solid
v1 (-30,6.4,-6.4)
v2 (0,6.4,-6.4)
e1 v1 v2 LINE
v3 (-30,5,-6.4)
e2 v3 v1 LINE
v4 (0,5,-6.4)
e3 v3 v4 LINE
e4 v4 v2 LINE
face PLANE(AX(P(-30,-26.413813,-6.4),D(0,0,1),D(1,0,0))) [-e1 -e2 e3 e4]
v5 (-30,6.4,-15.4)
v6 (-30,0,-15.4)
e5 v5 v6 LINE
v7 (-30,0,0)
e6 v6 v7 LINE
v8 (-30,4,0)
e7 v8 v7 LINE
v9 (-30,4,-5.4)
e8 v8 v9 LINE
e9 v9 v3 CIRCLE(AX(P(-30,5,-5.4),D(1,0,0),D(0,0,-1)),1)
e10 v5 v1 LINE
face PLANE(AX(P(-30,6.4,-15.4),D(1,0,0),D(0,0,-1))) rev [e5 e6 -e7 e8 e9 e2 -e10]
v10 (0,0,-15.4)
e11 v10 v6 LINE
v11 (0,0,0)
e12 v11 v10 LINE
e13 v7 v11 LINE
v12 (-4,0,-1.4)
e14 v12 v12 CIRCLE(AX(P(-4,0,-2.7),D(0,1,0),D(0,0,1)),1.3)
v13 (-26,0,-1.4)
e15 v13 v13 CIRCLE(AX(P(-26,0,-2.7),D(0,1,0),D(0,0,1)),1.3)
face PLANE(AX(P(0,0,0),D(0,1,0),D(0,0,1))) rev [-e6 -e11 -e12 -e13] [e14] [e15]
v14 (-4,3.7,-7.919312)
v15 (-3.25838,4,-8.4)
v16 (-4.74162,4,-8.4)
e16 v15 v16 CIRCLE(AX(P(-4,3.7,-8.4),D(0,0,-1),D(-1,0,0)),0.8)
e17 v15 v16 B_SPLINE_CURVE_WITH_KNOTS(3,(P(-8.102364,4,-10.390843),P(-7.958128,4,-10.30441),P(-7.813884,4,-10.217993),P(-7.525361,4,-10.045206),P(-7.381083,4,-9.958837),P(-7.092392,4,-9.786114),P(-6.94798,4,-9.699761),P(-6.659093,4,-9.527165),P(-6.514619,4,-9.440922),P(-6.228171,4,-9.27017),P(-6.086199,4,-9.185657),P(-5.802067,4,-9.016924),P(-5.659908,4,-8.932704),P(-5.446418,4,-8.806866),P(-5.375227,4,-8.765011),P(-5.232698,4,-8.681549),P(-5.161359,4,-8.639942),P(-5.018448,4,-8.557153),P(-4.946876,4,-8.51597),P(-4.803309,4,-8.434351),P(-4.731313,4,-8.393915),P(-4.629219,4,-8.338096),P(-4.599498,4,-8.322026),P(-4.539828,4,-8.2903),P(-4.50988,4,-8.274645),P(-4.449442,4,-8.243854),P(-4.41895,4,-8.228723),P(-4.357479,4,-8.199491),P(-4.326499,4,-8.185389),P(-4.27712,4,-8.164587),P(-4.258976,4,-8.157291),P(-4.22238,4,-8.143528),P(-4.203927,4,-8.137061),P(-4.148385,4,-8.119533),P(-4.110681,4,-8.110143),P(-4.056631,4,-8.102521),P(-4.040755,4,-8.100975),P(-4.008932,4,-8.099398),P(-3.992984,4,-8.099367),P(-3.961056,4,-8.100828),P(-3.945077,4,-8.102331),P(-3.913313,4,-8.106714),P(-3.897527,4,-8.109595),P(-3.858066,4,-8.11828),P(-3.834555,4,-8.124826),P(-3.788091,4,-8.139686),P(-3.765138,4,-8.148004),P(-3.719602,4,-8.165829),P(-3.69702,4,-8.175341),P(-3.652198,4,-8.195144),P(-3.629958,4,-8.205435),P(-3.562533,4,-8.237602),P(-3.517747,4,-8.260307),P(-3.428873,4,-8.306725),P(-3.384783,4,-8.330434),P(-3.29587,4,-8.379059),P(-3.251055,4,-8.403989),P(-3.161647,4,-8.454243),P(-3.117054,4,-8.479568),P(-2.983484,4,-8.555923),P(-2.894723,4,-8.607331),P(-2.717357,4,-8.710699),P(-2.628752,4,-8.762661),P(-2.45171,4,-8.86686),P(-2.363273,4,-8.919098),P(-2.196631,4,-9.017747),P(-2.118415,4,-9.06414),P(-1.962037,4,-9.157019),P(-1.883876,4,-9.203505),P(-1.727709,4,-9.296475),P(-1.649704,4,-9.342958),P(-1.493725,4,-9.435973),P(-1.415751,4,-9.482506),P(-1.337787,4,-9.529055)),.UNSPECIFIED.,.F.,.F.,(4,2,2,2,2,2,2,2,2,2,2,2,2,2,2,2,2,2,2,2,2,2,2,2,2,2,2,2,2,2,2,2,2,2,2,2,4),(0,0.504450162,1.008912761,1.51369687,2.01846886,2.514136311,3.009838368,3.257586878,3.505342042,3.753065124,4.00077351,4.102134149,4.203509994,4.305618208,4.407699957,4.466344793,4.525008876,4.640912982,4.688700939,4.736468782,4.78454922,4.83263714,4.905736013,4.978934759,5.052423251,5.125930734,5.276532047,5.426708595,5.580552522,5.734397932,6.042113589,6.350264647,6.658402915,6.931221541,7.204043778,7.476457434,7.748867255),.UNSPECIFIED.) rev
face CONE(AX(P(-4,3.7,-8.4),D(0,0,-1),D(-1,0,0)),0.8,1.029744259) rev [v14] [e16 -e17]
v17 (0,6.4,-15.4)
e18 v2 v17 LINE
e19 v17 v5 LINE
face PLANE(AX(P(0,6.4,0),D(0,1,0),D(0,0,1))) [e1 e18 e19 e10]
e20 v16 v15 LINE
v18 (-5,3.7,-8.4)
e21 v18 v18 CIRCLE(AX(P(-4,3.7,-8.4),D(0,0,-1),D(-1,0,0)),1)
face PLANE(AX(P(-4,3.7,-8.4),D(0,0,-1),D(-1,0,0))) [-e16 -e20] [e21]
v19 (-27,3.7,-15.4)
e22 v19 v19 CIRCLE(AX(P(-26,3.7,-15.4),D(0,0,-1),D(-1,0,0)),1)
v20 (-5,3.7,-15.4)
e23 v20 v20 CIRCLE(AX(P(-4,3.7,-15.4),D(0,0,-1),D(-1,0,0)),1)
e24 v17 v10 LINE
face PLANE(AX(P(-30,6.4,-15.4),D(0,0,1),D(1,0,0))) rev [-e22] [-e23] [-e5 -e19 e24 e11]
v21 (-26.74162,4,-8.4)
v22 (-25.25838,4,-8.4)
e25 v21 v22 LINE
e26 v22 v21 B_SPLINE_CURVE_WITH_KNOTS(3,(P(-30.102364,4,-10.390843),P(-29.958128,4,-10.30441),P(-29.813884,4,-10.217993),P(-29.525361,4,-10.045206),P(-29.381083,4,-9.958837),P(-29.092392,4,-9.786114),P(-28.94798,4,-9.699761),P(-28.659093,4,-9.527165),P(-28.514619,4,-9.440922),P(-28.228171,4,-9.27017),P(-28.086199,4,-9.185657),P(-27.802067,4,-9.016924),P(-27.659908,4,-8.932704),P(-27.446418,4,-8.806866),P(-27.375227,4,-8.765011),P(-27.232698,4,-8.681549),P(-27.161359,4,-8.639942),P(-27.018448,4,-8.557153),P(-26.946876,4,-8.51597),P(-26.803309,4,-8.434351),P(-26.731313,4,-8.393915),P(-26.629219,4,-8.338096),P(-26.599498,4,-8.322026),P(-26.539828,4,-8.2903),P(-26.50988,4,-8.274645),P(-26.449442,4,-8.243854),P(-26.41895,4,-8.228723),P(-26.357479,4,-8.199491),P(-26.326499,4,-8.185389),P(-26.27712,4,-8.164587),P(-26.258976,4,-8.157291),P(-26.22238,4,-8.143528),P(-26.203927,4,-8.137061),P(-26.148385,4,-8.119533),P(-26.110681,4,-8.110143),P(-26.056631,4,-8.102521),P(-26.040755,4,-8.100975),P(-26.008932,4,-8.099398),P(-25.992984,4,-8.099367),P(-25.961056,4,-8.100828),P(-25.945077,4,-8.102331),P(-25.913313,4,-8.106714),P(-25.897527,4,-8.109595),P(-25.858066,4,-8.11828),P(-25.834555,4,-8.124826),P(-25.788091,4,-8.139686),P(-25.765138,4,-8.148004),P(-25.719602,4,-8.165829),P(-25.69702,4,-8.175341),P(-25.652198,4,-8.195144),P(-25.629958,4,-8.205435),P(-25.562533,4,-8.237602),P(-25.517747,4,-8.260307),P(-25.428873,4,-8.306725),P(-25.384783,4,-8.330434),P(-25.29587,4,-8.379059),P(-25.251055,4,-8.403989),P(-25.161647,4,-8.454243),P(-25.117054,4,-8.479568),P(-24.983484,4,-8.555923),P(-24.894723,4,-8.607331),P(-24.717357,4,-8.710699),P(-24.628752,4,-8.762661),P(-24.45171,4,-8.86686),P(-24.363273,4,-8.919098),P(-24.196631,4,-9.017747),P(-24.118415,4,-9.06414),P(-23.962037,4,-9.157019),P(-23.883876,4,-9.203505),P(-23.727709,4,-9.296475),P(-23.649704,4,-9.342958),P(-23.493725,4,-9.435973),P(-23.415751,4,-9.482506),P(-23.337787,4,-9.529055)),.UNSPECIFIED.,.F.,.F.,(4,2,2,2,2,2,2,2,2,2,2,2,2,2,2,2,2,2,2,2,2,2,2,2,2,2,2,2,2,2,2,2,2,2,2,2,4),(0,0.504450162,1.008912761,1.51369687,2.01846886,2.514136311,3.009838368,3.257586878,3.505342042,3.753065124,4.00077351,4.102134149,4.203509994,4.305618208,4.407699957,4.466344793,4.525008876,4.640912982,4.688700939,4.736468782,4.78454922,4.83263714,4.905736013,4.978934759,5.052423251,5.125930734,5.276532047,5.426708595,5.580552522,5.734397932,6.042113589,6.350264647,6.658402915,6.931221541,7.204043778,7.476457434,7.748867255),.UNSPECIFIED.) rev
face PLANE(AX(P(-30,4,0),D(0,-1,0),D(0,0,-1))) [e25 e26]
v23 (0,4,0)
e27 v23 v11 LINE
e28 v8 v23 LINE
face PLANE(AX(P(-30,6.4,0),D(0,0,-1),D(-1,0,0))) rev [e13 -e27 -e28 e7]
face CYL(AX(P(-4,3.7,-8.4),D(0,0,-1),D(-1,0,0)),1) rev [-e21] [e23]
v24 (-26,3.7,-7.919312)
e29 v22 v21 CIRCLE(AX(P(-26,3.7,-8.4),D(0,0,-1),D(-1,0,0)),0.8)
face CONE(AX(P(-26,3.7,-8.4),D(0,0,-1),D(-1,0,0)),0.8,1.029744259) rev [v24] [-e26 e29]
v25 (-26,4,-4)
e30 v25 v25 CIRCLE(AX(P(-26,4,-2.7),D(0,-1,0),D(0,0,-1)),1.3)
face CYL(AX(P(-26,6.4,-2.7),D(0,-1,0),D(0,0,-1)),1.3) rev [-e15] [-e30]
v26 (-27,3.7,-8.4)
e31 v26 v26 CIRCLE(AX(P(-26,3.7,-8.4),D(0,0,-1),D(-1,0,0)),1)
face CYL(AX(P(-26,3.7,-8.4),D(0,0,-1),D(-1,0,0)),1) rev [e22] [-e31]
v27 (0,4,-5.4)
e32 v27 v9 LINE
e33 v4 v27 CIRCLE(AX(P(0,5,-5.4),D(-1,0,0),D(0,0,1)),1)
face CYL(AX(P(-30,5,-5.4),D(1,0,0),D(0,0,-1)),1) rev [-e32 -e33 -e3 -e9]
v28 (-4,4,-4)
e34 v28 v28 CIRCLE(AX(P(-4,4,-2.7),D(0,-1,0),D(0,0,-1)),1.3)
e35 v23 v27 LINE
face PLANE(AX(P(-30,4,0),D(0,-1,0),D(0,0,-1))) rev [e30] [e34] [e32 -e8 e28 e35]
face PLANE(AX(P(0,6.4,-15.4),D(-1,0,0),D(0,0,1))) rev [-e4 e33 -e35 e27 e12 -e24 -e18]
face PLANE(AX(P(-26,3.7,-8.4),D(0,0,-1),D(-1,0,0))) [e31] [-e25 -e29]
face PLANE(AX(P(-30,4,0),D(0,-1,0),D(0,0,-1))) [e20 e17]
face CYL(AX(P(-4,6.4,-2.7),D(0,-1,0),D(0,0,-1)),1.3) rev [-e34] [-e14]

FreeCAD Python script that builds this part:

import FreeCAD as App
import Part
import Sketcher
Q = App.Units.Quantity


def edges_at(feature, points):
    """Names of the edges that pass closest to the given points."""
    edges = feature.Shape.Edges
    near = lambda p: min(range(len(edges)), key=lambda i: edges[i].distToShape(Part.Vertex(*p))[0])
    return sorted({f"Edge{near(p) + 1}" for p in points})

doc = App.newDocument("Part")
body = doc.addObject("PartDesign::Body", "Body")

# Sketch on XZ plane
sketch1 = doc.addObject("Sketcher::SketchObject", "Sketch")
body.addObject(sketch1)
sketch1.AttachmentSupport = (doc.XZ_Plane, [""])
sketch1.MapMode = "FlatFace"
sketch1.addGeometry([
    Part.LineSegment(App.Vector(-30, -15.4, 0), App.Vector(-30, 0, 0)),
    Part.LineSegment(App.Vector(-30, 0, 0), App.Vector(0, 0, 0)),
    Part.LineSegment(App.Vector(0, 0, 0), App.Vector(0, -15.4, 0)),
    Part.LineSegment(App.Vector(0, -15.4, 0), App.Vector(-30, -15.4, 0)),
], False)
sketch1.addConstraint([
    Sketcher.Constraint("Coincident", 0, 2, 1, 1),
    Sketcher.Constraint("Coincident", 1, 2, 2, 1),
    Sketcher.Constraint("Coincident", 2, 2, 3, 1),
    Sketcher.Constraint("Coincident", 3, 2, 0, 1),
    Sketcher.Constraint("Vertical", 0),
    Sketcher.Constraint("Horizontal", 1),
    Sketcher.Constraint("Vertical", 2),
    Sketcher.Constraint("Horizontal", 3),
    Sketcher.Constraint("Coincident", 1, 2, -1, 1),
    Sketcher.Constraint("DistanceX", 1, 1, 1, 2, Q("30 mm")),
    Sketcher.Constraint("DistanceY", 0, 1, 0, 2, Q("15.4 mm")),
])
pad1 = doc.addObject("PartDesign::Pad", "Pad")
body.addObject(pad1)
pad1.Profile = sketch1
pad1.Length = 6.4
pad1.Reversed = True

# Sketch on XZ plane
sketch2 = doc.addObject("Sketcher::SketchObject", "Sketch001")
body.addObject(sketch2)
sketch2.AttachmentSupport = (doc.XZ_Plane, [""])
sketch2.MapMode = "FlatFace"
sketch2.addGeometry([
    Part.Circle(App.Vector(-26, -2.7, 0), App.Vector(0, 0, 1), 1.3),
    Part.Circle(App.Vector(-4, -2.7, 0), App.Vector(0, 0, 1), 1.3),
], False)
sketch2.addConstraint([
    Sketcher.Constraint("Equal", 0, 1),
    Sketcher.Constraint("Horizontal", 0, 3, 1, 3),
    Sketcher.Constraint("Diameter", 0, Q("2.6 mm")),
    Sketcher.Constraint("DistanceX", 0, 3, -1, 1, Q("26 mm")),
    Sketcher.Constraint("DistanceX", 1, 3, -1, 1, Q("4 mm")),
    Sketcher.Constraint("DistanceY", 0, 3, -1, 1, Q("2.7 mm")),
])
pocket1 = doc.addObject("PartDesign::Pocket", "Pocket")
body.addObject(pocket1)
pocket1.Profile = sketch2
pocket1.Type = "ThroughAll"

# Sketch on YZ plane
sketch3 = doc.addObject("Sketcher::SketchObject", "Sketch002")
body.addObject(sketch3)
sketch3.AttachmentSupport = (doc.YZ_Plane, [""])
sketch3.MapMode = "FlatFace"
sketch3.addGeometry([
    Part.LineSegment(App.Vector(6.4, 0, 0), App.Vector(4, 0, 0)),
    Part.LineSegment(App.Vector(4, 0, 0), App.Vector(4, -11.4, 0)),
    Part.LineSegment(App.Vector(4, -11.4, 0), App.Vector(6.4, -11.4, 0)),
    Part.LineSegment(App.Vector(6.4, -11.4, 0), App.Vector(6.4, 0, 0)),
], False)
sketch3.addConstraint([
    Sketcher.Constraint("Coincident", 0, 2, 1, 1),
    Sketcher.Constraint("Coincident", 1, 2, 2, 1),
    Sketcher.Constraint("Coincident", 2, 2, 3, 1),
    Sketcher.Constraint("Coincident", 3, 2, 0, 1),
    Sketcher.Constraint("Horizontal", 0),
    Sketcher.Constraint("Vertical", 1),
    Sketcher.Constraint("Horizontal", 2),
    Sketcher.Constraint("Vertical", 3),
    Sketcher.Constraint("PointOnObject", 0, 2, -1),
    Sketcher.Constraint("DistanceX", 0, 2, 0, 1, Q("2.4 mm")),
    Sketcher.Constraint("DistanceY", 1, 2, 1, 1, Q("11.4 mm")),
    Sketcher.Constraint("DistanceX", -1, 1, 0, 2, Q("4 mm")),
])
pocket2 = doc.addObject("PartDesign::Pocket", "Pocket001")
body.addObject(pocket2)
pocket2.Profile = sketch3
pocket2.Type = "ThroughAll"

# Sketch on XY plane
sketch4 = doc.addObject("Sketcher::SketchObject", "Sketch003")
body.addObject(sketch4)
sketch4.AttachmentSupport = (doc.XY_Plane, [""])
sketch4.MapMode = "FlatFace"
sketch4.AttachmentOffset = App.Placement(App.Vector(0, 0, -15.4), App.Rotation())
sketch4.addGeometry([
    Part.Circle(App.Vector(-4, 3.7, 0), App.Vector(0, 0, 1), 0.5),
    Part.Circle(App.Vector(-26, 3.7, 0), App.Vector(0, 0, 1), 0.5),
], False)
sketch4.addConstraint([
    Sketcher.Constraint("Equal", 0, 1),
    Sketcher.Constraint("Horizontal", 0, 3, 1, 3),
    Sketcher.Constraint("Diameter", 0, Q("1 mm")),
    Sketcher.Constraint("DistanceX", 0, 3, -1, 1, Q("4 mm")),
    Sketcher.Constraint("DistanceX", 1, 3, -1, 1, Q("26 mm")),
    Sketcher.Constraint("DistanceY", -1, 1, 0, 3, Q("3.7 mm")),
])
pocket3 = doc.addObject("PartDesign::Pocket", "Pocket002")
body.addObject(pocket3)
pocket3.Profile = sketch4
pocket3.Length = 7
pocket3.Reversed = True

# Sketch on XY plane
sketch5 = doc.addObject("Sketcher::SketchObject", "Sketch004")
body.addObject(sketch5)
sketch5.AttachmentSupport = (doc.XY_Plane, [""])
sketch5.MapMode = "FlatFace"
sketch5.AttachmentOffset = App.Placement(App.Vector(0, 0, -15.4), App.Rotation())
sketch5.addGeometry([
    Part.Circle(App.Vector(-4, 3.7, 0), App.Vector(0, 0, 1), 0.8),
    Part.Circle(App.Vector(-26, 3.7, 0), App.Vector(0, 0, 1), 0.8),
], False)
sketch5.addConstraint([
    Sketcher.Constraint("Equal", 0, 1),
    Sketcher.Constraint("Horizontal", 0, 3, 1, 3),
    Sketcher.Constraint("Diameter", 0, Q("1.6 mm")),
    Sketcher.Constraint("DistanceX", 0, 3, -1, 1, Q("4 mm")),
    Sketcher.Constraint("DistanceX", 1, 3, -1, 1, Q("26 mm")),
    Sketcher.Constraint("DistanceY", -1, 1, 0, 3, Q("3.7 mm")),
])
doc.recompute()
hole = doc.addObject("PartDesign::Hole", "Hole")
body.addObject(hole)
hole.Profile = sketch5
hole.ThreadType = "None"
hole.Diameter = 1.6
hole.DepthType = "Dimension"
hole.Depth = 7
hole.DrillPoint = "Angled"
hole.DrillPointAngle = 118
hole.Reversed = True

# Sketch on XZ plane
sketch6 = doc.addObject("Sketcher::SketchObject", "Sketch005")
body.addObject(sketch6)
sketch6.AttachmentSupport = (doc.XZ_Plane, [""])
sketch6.MapMode = "FlatFace"
sketch6.AttachmentOffset = App.Placement(App.Vector(0, 0, -6.4), App.Rotation())
sketch6.addGeometry([
    Part.LineSegment(App.Vector(-30, -11.4, 0), App.Vector(-30, -6.4, 0)),
    Part.LineSegment(App.Vector(-30, -6.4, 0), App.Vector(0, -6.4, 0)),
    Part.LineSegment(App.Vector(0, -6.4, 0), App.Vector(0, -11.4, 0)),
    Part.LineSegment(App.Vector(0, -11.4, 0), App.Vector(-30, -11.4, 0)),
], False)
sketch6.addConstraint([
    Sketcher.Constraint("Coincident", 0, 2, 1, 1),
    Sketcher.Constraint("Coincident", 1, 2, 2, 1),
    Sketcher.Constraint("Coincident", 2, 2, 3, 1),
    Sketcher.Constraint("Coincident", 3, 2, 0, 1),
    Sketcher.Constraint("Vertical", 0),
    Sketcher.Constraint("Horizontal", 1),
    Sketcher.Constraint("Vertical", 2),
    Sketcher.Constraint("Horizontal", 3),
    Sketcher.Constraint("PointOnObject", 1, 2, -2),
    Sketcher.Constraint("DistanceX", 1, 1, 1, 2, Q("30 mm")),
    Sketcher.Constraint("DistanceY", 0, 1, 0, 2, Q("5 mm")),
    Sketcher.Constraint("DistanceY", 0, 2, -1, 1, Q("6.4 mm")),
])
pad2 = doc.addObject("PartDesign::Pad", "Pad001")
body.addObject(pad2)
pad2.Profile = sketch6
pad2.Length = 2.4

# Sketch on XY plane
sketch7 = doc.addObject("Sketcher::SketchObject", "Sketch006")
body.addObject(sketch7)
sketch7.AttachmentSupport = (doc.XY_Plane, [""])
sketch7.MapMode = "FlatFace"
sketch7.AttachmentOffset = App.Placement(App.Vector(0, 0, -15.4), App.Rotation())
sketch7.addGeometry([
    Part.Circle(App.Vector(-4, 3.7, 0), App.Vector(0, 0, 1), 1),
    Part.Circle(App.Vector(-26, 3.7, 0), App.Vector(0, 0, 1), 1),
], False)
sketch7.addConstraint([
    Sketcher.Constraint("Equal", 0, 1),
    Sketcher.Constraint("Horizontal", 0, 3, 1, 3),
    Sketcher.Constraint("Diameter", 0, Q("2 mm")),
    Sketcher.Constraint("DistanceX", 0, 3, -1, 1, Q("4 mm")),
    Sketcher.Constraint("DistanceX", 1, 3, -1, 1, Q("26 mm")),
    Sketcher.Constraint("DistanceY", -1, 1, 0, 3, Q("3.7 mm")),
])
pocket4 = doc.addObject("PartDesign::Pocket", "Pocket003")
body.addObject(pocket4)
pocket4.Profile = sketch7
pocket4.Length = 7
pocket4.Reversed = True
doc.recompute()

fillet = doc.addObject("PartDesign::Fillet", "Fillet")
body.addObject(fillet)
fillet.Base = (pocket4, edges_at(pocket4, [(-15, 4, -6.4)]))
fillet.Radius = 1

doc.recompute()
